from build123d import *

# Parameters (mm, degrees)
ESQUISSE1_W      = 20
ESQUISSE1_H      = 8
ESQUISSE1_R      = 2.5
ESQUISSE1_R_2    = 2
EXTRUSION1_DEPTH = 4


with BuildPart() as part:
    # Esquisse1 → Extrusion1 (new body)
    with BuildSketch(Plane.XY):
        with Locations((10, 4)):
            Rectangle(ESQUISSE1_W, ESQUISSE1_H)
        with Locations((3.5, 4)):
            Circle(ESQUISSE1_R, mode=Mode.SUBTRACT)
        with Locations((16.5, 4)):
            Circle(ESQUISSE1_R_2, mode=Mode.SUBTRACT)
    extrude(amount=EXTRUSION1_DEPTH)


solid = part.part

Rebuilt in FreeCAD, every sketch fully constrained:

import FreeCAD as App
import Part
import Sketcher


def add_polygon(sketch, points):
    """Adds a closed chain of lines whose ends are joined by coincident constraints."""
    first, n = sketch.GeometryCount, len(points)
    for a, b in zip(points, points[1:] + points[:1]):
        sketch.addGeometry(Part.LineSegment(App.Vector(*a, 0), App.Vector(*b, 0)), False)
    for i in range(n):
        sketch.addConstraint(Sketcher.Constraint("Coincident", first + i, 2, first + (i + 1) % n, 1))

doc = App.newDocument("Part")
body = doc.addObject("PartDesign::Body", "Body")

# Sketch on XY plane
sketch1 = body.newObject("Sketcher::SketchObject", "Sketch")
sketch1.AttachmentSupport = (doc.getObject("XY_Plane"), [""])
sketch1.MapMode = "FlatFace"
add_polygon(sketch1, [(0, 8), (0, 0), (20, 0), (20, 8)])  # lines 0-3
sketch1.addGeometry(Part.Circle(App.Vector(3.5, 4, 0), App.Vector(0, 0, 1), 2.5), False)  # 4
sketch1.addGeometry(Part.Circle(App.Vector(16.5, 4, 0), App.Vector(0, 0, 1), 2), False)  # 5
sketch1.addConstraint([
    Sketcher.Constraint("Vertical", 0),
    Sketcher.Constraint("Horizontal", 1),
    Sketcher.Constraint("Vertical", 2),
    Sketcher.Constraint("Horizontal", 3),
    Sketcher.Constraint("Coincident", 0, 2, -1, 1),
    Sketcher.Constraint("Horizontal", 4, 3, 5, 3),
    Sketcher.Constraint("Diameter", 4, 5.0),
    Sketcher.Constraint("Diameter", 5, 4.0),
    Sketcher.Constraint("DistanceX", 1, 1, 1, 2, 20.0),
    Sketcher.Constraint("DistanceY", 0, 2, 0, 1, 8.0),
    Sketcher.Constraint("DistanceY", -1, 1, 4, 3, 4.0),
    Sketcher.Constraint("DistanceX", 4, 3, 5, 3, 13.0),
    Sketcher.Constraint("DistanceX", -1, 1, 4, 3, 3.5),
])
pad1 = body.newObject("PartDesign::Pad", "Pad")
pad1.Profile = sketch1
pad1.Length = 4

doc.recompute()
